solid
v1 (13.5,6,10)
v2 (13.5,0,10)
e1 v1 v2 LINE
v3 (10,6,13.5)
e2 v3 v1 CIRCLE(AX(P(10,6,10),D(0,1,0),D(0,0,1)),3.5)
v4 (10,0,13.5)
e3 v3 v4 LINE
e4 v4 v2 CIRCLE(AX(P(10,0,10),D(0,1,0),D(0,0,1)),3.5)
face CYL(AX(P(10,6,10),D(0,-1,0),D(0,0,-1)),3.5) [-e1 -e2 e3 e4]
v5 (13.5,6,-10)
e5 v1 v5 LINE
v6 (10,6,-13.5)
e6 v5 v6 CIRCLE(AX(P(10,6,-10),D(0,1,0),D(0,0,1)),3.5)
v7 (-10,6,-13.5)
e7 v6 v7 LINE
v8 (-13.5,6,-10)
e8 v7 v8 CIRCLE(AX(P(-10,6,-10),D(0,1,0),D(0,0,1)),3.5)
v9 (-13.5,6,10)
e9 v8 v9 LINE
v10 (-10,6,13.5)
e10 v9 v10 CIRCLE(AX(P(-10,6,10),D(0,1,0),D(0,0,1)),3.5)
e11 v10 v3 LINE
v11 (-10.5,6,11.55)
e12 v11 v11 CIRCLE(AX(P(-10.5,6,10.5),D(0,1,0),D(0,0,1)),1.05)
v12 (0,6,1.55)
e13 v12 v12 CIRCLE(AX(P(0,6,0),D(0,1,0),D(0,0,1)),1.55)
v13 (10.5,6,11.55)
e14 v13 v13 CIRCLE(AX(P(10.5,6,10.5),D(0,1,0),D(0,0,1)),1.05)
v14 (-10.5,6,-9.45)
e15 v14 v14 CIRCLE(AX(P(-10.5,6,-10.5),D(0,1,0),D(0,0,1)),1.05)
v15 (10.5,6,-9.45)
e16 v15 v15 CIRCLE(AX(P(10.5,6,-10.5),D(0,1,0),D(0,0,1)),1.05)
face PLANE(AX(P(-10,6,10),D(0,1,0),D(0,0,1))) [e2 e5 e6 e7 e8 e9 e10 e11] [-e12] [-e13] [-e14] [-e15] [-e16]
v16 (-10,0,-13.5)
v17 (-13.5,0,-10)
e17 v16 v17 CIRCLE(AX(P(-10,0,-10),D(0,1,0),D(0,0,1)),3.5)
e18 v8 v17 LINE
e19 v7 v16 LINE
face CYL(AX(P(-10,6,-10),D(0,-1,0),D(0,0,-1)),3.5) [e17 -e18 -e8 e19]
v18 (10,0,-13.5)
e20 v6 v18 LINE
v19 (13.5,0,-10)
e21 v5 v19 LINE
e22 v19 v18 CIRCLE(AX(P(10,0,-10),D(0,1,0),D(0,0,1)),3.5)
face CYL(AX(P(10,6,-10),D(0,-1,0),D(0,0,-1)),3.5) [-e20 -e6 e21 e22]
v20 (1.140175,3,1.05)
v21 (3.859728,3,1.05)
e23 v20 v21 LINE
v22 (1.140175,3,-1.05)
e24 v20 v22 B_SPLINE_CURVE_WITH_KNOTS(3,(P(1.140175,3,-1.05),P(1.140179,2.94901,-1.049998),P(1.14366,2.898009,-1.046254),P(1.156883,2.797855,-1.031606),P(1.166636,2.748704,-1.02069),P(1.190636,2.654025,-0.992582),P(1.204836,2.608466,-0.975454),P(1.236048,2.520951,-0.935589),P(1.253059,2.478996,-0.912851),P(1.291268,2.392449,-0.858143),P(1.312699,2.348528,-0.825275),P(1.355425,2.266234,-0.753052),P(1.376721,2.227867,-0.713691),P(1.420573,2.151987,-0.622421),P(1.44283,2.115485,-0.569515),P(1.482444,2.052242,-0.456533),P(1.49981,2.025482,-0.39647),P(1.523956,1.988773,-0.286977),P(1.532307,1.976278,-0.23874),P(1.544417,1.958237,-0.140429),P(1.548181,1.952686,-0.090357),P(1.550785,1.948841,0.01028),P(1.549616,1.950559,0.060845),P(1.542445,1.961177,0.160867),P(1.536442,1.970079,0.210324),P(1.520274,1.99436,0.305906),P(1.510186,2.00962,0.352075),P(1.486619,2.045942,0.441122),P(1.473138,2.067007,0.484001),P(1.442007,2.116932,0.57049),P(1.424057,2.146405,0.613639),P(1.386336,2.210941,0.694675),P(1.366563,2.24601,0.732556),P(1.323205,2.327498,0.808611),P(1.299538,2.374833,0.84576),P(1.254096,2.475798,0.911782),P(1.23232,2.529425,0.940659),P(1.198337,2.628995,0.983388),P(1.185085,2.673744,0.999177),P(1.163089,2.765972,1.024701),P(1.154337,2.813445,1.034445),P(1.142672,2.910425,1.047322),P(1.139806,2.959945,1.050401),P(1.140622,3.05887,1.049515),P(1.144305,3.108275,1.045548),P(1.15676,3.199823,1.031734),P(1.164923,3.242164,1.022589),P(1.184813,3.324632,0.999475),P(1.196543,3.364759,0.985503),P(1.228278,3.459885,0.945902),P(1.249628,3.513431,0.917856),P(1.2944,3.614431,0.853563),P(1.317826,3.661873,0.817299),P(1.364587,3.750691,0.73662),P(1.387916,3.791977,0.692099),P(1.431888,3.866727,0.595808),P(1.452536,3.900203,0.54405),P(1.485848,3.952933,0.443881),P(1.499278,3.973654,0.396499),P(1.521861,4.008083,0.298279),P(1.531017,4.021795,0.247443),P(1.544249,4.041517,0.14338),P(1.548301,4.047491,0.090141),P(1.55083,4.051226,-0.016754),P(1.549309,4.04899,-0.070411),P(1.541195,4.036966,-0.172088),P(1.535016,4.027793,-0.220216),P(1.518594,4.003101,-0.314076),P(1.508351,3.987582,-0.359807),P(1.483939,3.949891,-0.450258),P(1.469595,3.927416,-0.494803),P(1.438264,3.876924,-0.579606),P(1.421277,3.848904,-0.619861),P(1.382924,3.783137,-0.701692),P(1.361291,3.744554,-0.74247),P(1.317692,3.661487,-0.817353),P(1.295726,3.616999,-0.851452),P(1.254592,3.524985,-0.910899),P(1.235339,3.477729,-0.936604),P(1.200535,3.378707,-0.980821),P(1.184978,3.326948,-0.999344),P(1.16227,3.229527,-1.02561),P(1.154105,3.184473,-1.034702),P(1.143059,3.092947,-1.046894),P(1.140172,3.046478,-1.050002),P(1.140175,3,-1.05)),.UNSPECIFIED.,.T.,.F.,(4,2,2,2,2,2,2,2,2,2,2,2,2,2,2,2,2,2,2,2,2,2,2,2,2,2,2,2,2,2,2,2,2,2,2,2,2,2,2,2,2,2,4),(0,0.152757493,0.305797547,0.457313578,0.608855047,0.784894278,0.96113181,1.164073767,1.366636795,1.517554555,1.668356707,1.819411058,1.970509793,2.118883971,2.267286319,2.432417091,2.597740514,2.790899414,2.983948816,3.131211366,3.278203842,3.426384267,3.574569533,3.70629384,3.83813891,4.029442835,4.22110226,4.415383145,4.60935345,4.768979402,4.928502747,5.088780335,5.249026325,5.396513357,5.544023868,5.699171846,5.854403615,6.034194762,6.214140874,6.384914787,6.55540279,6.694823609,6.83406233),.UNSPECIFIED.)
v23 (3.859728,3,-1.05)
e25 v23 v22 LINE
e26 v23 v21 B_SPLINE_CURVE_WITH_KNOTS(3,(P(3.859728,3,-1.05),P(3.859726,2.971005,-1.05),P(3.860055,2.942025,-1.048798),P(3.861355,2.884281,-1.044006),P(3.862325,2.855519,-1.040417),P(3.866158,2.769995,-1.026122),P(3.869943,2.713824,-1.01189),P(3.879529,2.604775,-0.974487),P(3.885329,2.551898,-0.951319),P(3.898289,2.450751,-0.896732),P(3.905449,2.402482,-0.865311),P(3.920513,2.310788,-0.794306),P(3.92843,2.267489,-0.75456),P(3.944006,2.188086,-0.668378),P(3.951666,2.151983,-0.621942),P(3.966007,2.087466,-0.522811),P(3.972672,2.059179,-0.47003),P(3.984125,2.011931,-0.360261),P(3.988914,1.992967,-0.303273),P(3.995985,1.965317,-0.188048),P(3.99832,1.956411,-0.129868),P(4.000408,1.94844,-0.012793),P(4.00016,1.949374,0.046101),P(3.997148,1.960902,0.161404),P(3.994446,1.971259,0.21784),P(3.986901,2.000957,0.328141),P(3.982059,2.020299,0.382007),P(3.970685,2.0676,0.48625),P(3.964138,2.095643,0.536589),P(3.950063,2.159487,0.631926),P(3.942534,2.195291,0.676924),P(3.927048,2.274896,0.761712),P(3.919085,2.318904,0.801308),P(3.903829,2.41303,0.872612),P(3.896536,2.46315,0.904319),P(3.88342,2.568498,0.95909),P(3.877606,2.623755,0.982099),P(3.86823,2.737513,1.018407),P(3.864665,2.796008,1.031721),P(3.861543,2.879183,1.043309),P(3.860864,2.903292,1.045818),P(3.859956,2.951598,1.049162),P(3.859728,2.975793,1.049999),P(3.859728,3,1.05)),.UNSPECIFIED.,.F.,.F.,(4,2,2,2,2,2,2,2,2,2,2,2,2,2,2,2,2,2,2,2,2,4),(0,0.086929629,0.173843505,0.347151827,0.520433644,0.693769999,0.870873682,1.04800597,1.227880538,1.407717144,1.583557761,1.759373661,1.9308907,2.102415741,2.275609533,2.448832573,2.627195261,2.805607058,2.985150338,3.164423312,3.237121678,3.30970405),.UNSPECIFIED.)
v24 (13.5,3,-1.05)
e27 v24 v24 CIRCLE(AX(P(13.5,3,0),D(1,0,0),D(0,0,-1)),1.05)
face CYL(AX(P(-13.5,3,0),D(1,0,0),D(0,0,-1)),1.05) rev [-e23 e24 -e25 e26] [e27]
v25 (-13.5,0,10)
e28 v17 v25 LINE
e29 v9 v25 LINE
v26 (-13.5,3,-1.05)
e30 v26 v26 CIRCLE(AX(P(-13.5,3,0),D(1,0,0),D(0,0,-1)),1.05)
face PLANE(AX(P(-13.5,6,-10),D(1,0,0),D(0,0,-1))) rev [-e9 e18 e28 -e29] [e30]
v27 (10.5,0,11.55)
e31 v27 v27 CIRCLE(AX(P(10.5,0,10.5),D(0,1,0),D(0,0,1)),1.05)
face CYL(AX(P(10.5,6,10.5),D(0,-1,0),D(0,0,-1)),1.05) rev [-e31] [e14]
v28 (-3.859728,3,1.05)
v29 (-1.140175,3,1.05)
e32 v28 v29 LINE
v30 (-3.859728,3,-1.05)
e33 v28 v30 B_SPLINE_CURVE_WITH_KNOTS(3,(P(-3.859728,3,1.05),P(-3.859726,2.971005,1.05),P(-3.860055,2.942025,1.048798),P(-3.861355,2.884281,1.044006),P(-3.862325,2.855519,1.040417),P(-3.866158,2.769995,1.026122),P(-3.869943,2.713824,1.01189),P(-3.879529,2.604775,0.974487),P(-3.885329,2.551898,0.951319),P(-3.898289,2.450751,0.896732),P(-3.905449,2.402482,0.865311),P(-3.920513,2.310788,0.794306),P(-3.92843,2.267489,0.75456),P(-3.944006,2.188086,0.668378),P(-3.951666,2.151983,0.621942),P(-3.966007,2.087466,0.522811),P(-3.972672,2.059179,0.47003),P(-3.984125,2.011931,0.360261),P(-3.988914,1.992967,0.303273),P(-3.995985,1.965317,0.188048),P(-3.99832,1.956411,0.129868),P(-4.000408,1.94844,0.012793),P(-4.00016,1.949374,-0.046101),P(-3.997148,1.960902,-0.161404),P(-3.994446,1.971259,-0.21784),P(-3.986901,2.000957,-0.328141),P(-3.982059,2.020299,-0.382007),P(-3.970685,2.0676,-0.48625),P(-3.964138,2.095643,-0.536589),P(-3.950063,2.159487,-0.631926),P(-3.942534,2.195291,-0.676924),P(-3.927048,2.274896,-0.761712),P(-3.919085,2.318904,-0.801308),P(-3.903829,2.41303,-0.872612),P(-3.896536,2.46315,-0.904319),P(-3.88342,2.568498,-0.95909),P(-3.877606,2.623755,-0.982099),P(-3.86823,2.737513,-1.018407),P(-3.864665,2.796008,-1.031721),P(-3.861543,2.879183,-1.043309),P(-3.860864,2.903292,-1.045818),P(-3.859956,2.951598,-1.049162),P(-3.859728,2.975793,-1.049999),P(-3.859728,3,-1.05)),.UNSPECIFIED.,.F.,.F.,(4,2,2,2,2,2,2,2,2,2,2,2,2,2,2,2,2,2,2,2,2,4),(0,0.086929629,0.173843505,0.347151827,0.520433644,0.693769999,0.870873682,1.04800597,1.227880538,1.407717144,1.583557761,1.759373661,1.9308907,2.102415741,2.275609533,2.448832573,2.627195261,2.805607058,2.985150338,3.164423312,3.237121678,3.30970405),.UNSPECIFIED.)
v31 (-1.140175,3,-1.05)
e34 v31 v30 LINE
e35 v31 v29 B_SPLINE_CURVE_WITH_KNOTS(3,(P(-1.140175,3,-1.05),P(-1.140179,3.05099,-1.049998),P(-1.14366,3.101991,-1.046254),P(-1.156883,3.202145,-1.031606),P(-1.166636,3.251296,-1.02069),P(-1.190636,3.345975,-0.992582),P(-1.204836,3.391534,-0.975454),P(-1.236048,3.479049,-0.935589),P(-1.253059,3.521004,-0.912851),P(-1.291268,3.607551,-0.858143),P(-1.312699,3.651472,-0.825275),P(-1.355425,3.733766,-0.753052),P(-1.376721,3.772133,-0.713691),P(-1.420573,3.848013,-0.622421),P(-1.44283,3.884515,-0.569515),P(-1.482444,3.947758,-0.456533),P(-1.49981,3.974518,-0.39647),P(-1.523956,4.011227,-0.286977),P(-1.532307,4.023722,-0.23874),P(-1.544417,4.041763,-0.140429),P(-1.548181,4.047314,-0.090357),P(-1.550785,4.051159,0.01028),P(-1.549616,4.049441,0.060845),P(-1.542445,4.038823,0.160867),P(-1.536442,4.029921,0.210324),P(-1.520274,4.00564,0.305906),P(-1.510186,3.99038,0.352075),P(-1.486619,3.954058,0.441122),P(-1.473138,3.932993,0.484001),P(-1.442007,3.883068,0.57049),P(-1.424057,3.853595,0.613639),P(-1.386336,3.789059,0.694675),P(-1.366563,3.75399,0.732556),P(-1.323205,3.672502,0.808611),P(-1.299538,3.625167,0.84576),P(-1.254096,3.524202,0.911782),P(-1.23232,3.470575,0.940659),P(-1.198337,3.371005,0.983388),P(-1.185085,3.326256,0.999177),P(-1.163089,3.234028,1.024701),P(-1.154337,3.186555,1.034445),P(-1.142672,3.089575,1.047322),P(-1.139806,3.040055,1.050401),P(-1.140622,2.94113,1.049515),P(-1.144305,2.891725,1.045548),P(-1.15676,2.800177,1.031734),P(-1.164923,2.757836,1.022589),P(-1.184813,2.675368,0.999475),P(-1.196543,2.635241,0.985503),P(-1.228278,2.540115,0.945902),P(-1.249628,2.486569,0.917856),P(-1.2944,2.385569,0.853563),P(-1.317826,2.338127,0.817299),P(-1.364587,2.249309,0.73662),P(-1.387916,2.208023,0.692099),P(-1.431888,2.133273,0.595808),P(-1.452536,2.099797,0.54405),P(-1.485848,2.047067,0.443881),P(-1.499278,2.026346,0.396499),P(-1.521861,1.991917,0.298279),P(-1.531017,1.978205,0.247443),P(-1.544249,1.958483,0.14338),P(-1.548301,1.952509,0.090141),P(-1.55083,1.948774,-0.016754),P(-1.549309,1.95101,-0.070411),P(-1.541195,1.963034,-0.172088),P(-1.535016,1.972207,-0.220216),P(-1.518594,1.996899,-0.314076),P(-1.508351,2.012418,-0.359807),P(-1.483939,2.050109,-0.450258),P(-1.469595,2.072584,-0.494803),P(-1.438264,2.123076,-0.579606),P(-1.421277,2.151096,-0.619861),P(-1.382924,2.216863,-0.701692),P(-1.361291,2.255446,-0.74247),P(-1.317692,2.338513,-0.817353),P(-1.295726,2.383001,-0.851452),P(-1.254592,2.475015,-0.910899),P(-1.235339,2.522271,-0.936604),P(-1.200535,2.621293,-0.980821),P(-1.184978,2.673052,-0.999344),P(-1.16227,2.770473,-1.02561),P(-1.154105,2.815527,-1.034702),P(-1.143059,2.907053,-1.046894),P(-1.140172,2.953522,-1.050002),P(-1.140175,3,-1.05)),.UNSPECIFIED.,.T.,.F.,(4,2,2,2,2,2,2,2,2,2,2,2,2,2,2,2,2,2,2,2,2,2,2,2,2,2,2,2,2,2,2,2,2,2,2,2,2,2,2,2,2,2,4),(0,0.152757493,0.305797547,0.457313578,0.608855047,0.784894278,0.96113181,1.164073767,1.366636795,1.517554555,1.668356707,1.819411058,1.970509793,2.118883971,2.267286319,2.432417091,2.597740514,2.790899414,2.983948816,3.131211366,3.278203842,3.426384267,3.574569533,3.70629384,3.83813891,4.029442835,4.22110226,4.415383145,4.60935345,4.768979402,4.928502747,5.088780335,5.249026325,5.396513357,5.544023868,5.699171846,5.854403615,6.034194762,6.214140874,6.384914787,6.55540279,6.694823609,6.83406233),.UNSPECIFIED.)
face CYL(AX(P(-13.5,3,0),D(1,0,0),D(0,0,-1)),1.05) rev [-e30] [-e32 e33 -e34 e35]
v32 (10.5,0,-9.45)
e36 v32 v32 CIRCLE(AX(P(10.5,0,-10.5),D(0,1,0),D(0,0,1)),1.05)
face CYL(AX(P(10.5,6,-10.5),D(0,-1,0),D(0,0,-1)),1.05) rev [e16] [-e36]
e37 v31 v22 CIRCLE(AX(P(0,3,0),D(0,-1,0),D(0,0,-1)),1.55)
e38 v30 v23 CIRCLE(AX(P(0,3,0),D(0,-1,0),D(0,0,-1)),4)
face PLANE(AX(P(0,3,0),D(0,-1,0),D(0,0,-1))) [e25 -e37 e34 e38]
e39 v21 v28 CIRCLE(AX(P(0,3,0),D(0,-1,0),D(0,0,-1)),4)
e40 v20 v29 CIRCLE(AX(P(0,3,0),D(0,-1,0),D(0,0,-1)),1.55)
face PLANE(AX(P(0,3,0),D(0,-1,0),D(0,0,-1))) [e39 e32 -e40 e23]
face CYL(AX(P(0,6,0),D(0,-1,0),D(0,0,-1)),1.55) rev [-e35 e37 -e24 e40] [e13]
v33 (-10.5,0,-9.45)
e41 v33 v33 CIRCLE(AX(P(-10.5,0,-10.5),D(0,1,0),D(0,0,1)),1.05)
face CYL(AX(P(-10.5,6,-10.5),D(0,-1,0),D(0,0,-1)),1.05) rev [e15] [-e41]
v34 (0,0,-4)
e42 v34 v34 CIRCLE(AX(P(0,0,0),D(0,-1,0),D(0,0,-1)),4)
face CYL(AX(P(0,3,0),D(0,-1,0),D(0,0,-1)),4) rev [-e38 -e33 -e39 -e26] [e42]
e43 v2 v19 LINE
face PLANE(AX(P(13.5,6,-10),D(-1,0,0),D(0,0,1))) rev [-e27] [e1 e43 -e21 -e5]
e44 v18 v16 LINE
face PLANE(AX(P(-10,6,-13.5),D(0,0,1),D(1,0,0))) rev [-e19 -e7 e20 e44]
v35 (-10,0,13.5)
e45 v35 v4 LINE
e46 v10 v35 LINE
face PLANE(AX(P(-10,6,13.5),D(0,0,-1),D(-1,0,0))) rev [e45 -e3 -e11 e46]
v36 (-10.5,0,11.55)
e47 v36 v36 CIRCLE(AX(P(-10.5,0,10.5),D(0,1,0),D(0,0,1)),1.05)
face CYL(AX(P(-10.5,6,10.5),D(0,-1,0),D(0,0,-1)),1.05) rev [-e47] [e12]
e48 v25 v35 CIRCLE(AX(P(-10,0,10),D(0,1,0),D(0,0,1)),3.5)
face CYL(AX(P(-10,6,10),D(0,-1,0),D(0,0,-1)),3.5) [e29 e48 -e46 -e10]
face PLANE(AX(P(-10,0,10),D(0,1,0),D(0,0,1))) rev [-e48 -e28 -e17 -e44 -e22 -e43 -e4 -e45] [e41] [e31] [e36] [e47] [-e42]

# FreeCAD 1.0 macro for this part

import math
import FreeCAD as App
import Part
import Sketcher
from FreeCAD import Vector
Q = App.Units.Quantity

doc = App.newDocument("Part")
body = doc.addObject("PartDesign::Body", "Body")

# Sketch on XZ plane
sketch1 = doc.addObject("Sketcher::SketchObject", "Sketch")
body.addObject(sketch1)
sketch1.AttachmentSupport = (doc.XZ_Plane, [""])
sketch1.MapMode = "FlatFace"
sketch1.addGeometry([
    Part.LineSegment(Vector(10, -13.5, 0), Vector(-10, -13.5, 0)),  # 0
    Part.ArcOfCircle(Part.Circle(Vector(-10, -10, 0), Vector(0, 0, 1), 3.5), math.radians(-180), math.radians(-90)),  # 1
    Part.LineSegment(Vector(-13.5, -10, 0), Vector(-13.5, 10, 0)),  # 2
    Part.ArcOfCircle(Part.Circle(Vector(-10, 10, 0), Vector(0, 0, 1), 3.5), math.radians(90), math.radians(180)),  # 3
    Part.LineSegment(Vector(-10, 13.5, 0), Vector(10, 13.5, 0)),  # 4
    Part.ArcOfCircle(Part.Circle(Vector(10, 10, 0), Vector(0, 0, 1), 3.5), math.radians(0), math.radians(90)),  # 5
    Part.LineSegment(Vector(13.5, 10, 0), Vector(13.5, -10, 0)),  # 6
    Part.ArcOfCircle(Part.Circle(Vector(10, -10, 0), Vector(0, 0, 1), 3.5), math.radians(-90), math.radians(0)),  # 7
    Part.Circle(Vector(10.5, 10.5, 0), Vector(0, 0, 1), 1.05),  # 8
    Part.Circle(Vector(-10.5, 10.5, 0), Vector(0, 0, 1), 1.05),  # 9
    Part.Circle(Vector(10.5, -10.5, 0), Vector(0, 0, 1), 1.05),  # 10
    Part.Circle(Vector(0, 0, 0), Vector(0, 0, 1), 1.55),  # 11
    Part.Circle(Vector(-10.5, -10.5, 0), Vector(0, 0, 1), 1.05),  # 12
], False)
sketch1.addConstraint([
    Sketcher.Constraint("Tangent", 0, 2, 1, 2),
    Sketcher.Constraint("Tangent", 1, 1, 2, 1),
    Sketcher.Constraint("Tangent", 2, 2, 3, 2),
    Sketcher.Constraint("Tangent", 3, 1, 4, 1),
    Sketcher.Constraint("Tangent", 4, 2, 5, 2),
    Sketcher.Constraint("Tangent", 5, 1, 6, 1),
    Sketcher.Constraint("Tangent", 6, 2, 7, 2),
    Sketcher.Constraint("Tangent", 7, 1, 0, 1),
    Sketcher.Constraint("Horizontal", 0),
    Sketcher.Constraint("Vertical", 2),
    Sketcher.Constraint("Horizontal", 4),
    Sketcher.Constraint("Vertical", 6),
    Sketcher.Constraint("Coincident", 11, 3, -1, 1),
    Sketcher.Constraint("Equal", 1, 3),
    Sketcher.Constraint("Equal", 3, 5),
    Sketcher.Constraint("Equal", 5, 7),
    Sketcher.Constraint("Equal", 8, 9),
    Sketcher.Constraint("Equal", 9, 10),
    Sketcher.Constraint("Equal", 10, 12),
    Sketcher.Constraint("Symmetric", 1, 3, 5, 3, -1, 1),
    Sketcher.Constraint("Symmetric", 9, 3, 10, 3, -1, 1),
    Sketcher.Constraint("Symmetric", 8, 3, 12, 3, -1, 1),
    Sketcher.Constraint("Symmetric", 8, 3, 9, 3, -2),
    Sketcher.Constraint("Equal", 4, 2),
    Sketcher.Constraint("Diameter", 8, Q("2.1 mm")),
    Sketcher.Constraint("Diameter", 11, Q("3.1 mm")),
    Sketcher.Constraint("Radius", 1, Q("3.5 mm")),
    Sketcher.Constraint("DistanceX", 0, 2, 0, 1, Q("20 mm")),
    Sketcher.Constraint("DistanceX", 9, 3, 8, 3, Q("21 mm")),
    Sketcher.Constraint("DistanceY", 10, 3, 8, 3, Q("21 mm")),
])
pad1 = doc.addObject("PartDesign::Pad", "Pad")
body.addObject(pad1)
pad1.Profile = sketch1
pad1.Length = 6
pad1.Reversed = True

# Sketch on YZ plane
sketch2 = doc.addObject("Sketcher::SketchObject", "Sketch001")
body.addObject(sketch2)
sketch2.AttachmentSupport = (doc.YZ_Plane, [""])
sketch2.MapMode = "FlatFace"
sketch2.AttachmentOffset = App.Placement(Vector(0, 0, 13.5), App.Rotation())
sketch2.addGeometry(Part.Circle(Vector(3, 0, 0), Vector(0, 0, 1), 1.05), False)
sketch2.addConstraint([
    Sketcher.Constraint("PointOnObject", 0, 3, -1),
    Sketcher.Constraint("Diameter", 0, Q("2.1 mm")),
    Sketcher.Constraint("DistanceX", -1, 1, 0, 3, Q("3 mm")),
])
pocket1 = doc.addObject("PartDesign::Pocket", "Pocket")
body.addObject(pocket1)
pocket1.Profile = sketch2
pocket1.Type = "ThroughAll"

# Sketch on XZ plane
sketch3 = doc.addObject("Sketcher::SketchObject", "Sketch002")
body.addObject(sketch3)
sketch3.AttachmentSupport = (doc.XZ_Plane, [""])
sketch3.MapMode = "FlatFace"
sketch3.addGeometry(Part.Circle(Vector(0, 0, 0), Vector(0, 0, 1), 4), False)
sketch3.addConstraint([
    Sketcher.Constraint("Coincident", 0, 3, -1, 1),
    Sketcher.Constraint("Diameter", 0, Q("8 mm")),
])
pocket2 = doc.addObject("PartDesign::Pocket", "Pocket001")
body.addObject(pocket2)
pocket2.Profile = sketch3
pocket2.Length = 3

doc.recompute()
